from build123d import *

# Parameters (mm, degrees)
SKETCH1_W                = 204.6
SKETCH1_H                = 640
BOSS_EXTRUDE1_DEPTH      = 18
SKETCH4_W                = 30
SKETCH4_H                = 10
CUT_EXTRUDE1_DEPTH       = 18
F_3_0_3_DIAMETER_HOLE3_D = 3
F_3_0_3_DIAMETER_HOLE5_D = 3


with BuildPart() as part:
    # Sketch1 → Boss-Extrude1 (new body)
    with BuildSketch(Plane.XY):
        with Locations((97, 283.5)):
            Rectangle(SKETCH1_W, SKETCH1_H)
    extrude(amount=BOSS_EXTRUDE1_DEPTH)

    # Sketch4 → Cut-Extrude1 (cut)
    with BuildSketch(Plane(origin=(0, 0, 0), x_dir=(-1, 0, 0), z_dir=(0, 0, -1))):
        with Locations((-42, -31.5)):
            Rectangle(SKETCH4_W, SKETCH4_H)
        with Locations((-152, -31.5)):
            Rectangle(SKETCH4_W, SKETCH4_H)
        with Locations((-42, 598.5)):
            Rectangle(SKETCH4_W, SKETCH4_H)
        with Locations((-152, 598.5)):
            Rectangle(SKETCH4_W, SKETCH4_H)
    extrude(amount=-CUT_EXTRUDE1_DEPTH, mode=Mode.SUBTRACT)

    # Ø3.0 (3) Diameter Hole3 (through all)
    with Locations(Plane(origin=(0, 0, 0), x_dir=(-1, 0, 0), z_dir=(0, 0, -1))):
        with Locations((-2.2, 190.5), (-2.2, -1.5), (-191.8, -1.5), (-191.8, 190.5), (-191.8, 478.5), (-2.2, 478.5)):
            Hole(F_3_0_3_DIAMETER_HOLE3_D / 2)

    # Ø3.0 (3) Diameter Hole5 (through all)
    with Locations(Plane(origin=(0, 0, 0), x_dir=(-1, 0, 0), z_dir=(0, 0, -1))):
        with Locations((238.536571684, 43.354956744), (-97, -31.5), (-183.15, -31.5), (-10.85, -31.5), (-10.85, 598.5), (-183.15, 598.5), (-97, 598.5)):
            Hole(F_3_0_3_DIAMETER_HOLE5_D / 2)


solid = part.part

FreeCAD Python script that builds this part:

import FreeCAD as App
import Part
import Sketcher
Q = App.Units.Quantity

doc = App.newDocument("Part")
params = doc.addObject("Spreadsheet::Sheet", "Params")
for row, (alias, value) in enumerate([
    ("sketch1_height", "640 mm"),
    ("sketch1_width", "204.6 mm"),
    ("pad1_length", "18 mm"),
    ("sketch2_width", "30 mm"),
    ("sketch2_height", "10 mm"),
    ("pocket1_length", "18 mm"),
    ("sketch3_diameter", "3 mm"),
    ("hole_diameter", "3 mm"),
    ("sketch4_diameter", "3 mm"),
    ("hole2_diameter", "3 mm"),
], start=1):
    params.set(f"A{row}", alias)
    params.set(f"B{row}", "=" + value)
    params.setAlias(f"B{row}", alias)

body = doc.addObject("PartDesign::Body", "Body")

# Sketch on XY plane
sketch1 = doc.addObject("Sketcher::SketchObject", "Sketch")
body.addObject(sketch1)
sketch1.AttachmentSupport = (doc.XY_Plane, [""])
sketch1.MapMode = "FlatFace"
sketch1.addGeometry([
    Part.LineSegment(App.Vector(-5, 604, 0), App.Vector(-5, -36, 0)),
    Part.LineSegment(App.Vector(-5, -36, 0), App.Vector(199, -36, 0)),
    Part.LineSegment(App.Vector(199, -36, 0), App.Vector(199, 604, 0)),
    Part.LineSegment(App.Vector(199, 604, 0), App.Vector(-5, 604, 0)),
], False)
sketch1.addConstraint([
    Sketcher.Constraint("Coincident", 0, 2, 1, 1),
    Sketcher.Constraint("Coincident", 1, 2, 2, 1),
    Sketcher.Constraint("Coincident", 2, 2, 3, 1),
    Sketcher.Constraint("Coincident", 3, 2, 0, 1),
    Sketcher.Constraint("Vertical", 0),
    Sketcher.Constraint("Horizontal", 1),
    Sketcher.Constraint("Vertical", 2),
    Sketcher.Constraint("Horizontal", 3),
    Sketcher.Constraint("DistanceY", 0, 2, 0, 1, Q("640 mm")),
    Sketcher.Constraint("DistanceX", 1, 1, 1, 2, Q("204.6 mm")),
    Sketcher.Constraint("DistanceX", 0, 2, -1, 1, Q("5.3 mm")),
    Sketcher.Constraint("DistanceY", 0, 2, -1, 1, Q("36.5 mm")),
])
sketch1.setExpression("Constraints[8]", "Params.sketch1_height")
sketch1.setExpression("Constraints[9]", "Params.sketch1_width")
pad1 = doc.addObject("PartDesign::Pad", "Pad")
body.addObject(pad1)
pad1.Profile = sketch1
pad1.setExpression("Length", "Params.pad1_length")

# Sketch on XY plane
sketch2 = doc.addObject("Sketcher::SketchObject", "Sketch001")
body.addObject(sketch2)
sketch2.AttachmentSupport = (doc.XY_Plane, [""])
sketch2.MapMode = "FlatFace"
sketch2.addGeometry([
    Part.LineSegment(App.Vector(57, -26, 0), App.Vector(57, -36, 0)),  # 0
    Part.LineSegment(App.Vector(57, -36, 0), App.Vector(27, -36, 0)),  # 1
    Part.LineSegment(App.Vector(27, -36, 0), App.Vector(27, -26, 0)),  # 2
    Part.LineSegment(App.Vector(27, -26, 0), App.Vector(57, -26, 0)),  # 3
    Part.LineSegment(App.Vector(167, -26, 0), App.Vector(167, -36, 0)),  # 4
    Part.LineSegment(App.Vector(167, -36, 0), App.Vector(137, -36, 0)),  # 5
    Part.LineSegment(App.Vector(137, -36, 0), App.Vector(137, -26, 0)),  # 6
    Part.LineSegment(App.Vector(137, -26, 0), App.Vector(167, -26, 0)),  # 7
    Part.LineSegment(App.Vector(57, 604, 0), App.Vector(57, 594, 0)),  # 8
    Part.LineSegment(App.Vector(57, 594, 0), App.Vector(27, 594, 0)),  # 9
    Part.LineSegment(App.Vector(27, 594, 0), App.Vector(27, 604, 0)),  # 10
    Part.LineSegment(App.Vector(27, 604, 0), App.Vector(57, 604, 0)),  # 11
    Part.LineSegment(App.Vector(167, 604, 0), App.Vector(167, 594, 0)),  # 12
    Part.LineSegment(App.Vector(167, 594, 0), App.Vector(137, 594, 0)),  # 13
    Part.LineSegment(App.Vector(137, 594, 0), App.Vector(137, 604, 0)),  # 14
    Part.LineSegment(App.Vector(137, 604, 0), App.Vector(167, 604, 0)),  # 15
], False)
sketch2.addConstraint([
    Sketcher.Constraint("Coincident", 0, 2, 1, 1),
    Sketcher.Constraint("Coincident", 1, 2, 2, 1),
    Sketcher.Constraint("Coincident", 2, 2, 3, 1),
    Sketcher.Constraint("Coincident", 3, 2, 0, 1),
    Sketcher.Constraint("Coincident", 4, 2, 5, 1),
    Sketcher.Constraint("Coincident", 5, 2, 6, 1),
    Sketcher.Constraint("Coincident", 6, 2, 7, 1),
    Sketcher.Constraint("Coincident", 7, 2, 4, 1),
    Sketcher.Constraint("Coincident", 8, 2, 9, 1),
    Sketcher.Constraint("Coincident", 9, 2, 10, 1),
    Sketcher.Constraint("Coincident", 10, 2, 11, 1),
    Sketcher.Constraint("Coincident", 11, 2, 8, 1),
    Sketcher.Constraint("Coincident", 12, 2, 13, 1),
    Sketcher.Constraint("Coincident", 13, 2, 14, 1),
    Sketcher.Constraint("Coincident", 14, 2, 15, 1),
    Sketcher.Constraint("Coincident", 15, 2, 12, 1),
    Sketcher.Constraint("Vertical", 0),
    Sketcher.Constraint("Horizontal", 1),
    Sketcher.Constraint("Vertical", 2),
    Sketcher.Constraint("Horizontal", 3),
    Sketcher.Constraint("Vertical", 4),
    Sketcher.Constraint("Horizontal", 5),
    Sketcher.Constraint("Vertical", 6),
    Sketcher.Constraint("Horizontal", 7),
    Sketcher.Constraint("Vertical", 8),
    Sketcher.Constraint("Horizontal", 9),
    Sketcher.Constraint("Vertical", 10),
    Sketcher.Constraint("Horizontal", 11),
    Sketcher.Constraint("Vertical", 12),
    Sketcher.Constraint("Horizontal", 13),
    Sketcher.Constraint("Vertical", 14),
    Sketcher.Constraint("Horizontal", 15),
    Sketcher.Constraint("Horizontal", 1, 2, 4, 2),
    Sketcher.Constraint("Horizontal", 3, 2, 6, 2),
    Sketcher.Constraint("Horizontal", 9, 2, 12, 2),
    Sketcher.Constraint("Horizontal", 11, 2, 14, 2),
    Sketcher.Constraint("Vertical", 3, 2, 8, 2),
    Sketcher.Constraint("Vertical", 2, 2, 9, 2),
    Sketcher.Constraint("Vertical", 7, 2, 12, 2),
    Sketcher.Constraint("Vertical", 6, 2, 13, 2),
    Sketcher.Constraint("Equal", 3, 5),
    Sketcher.Constraint("Equal", 6, 8),
    Sketcher.Constraint("DistanceX", 1, 2, 1, 1, Q("30 mm")),
    Sketcher.Constraint("DistanceY", 0, 2, 0, 1, Q("10 mm")),
    Sketcher.Constraint("DistanceX", -1, 1, 0, 2, Q("57 mm")),
    Sketcher.Constraint("DistanceX", -1, 1, 4, 2, Q("167 mm")),
    Sketcher.Constraint("DistanceY", 3, 2, 8, 2, Q("620 mm")),
    Sketcher.Constraint("DistanceY", 0, 2, -1, 1, Q("36.5 mm")),
])
sketch2.setExpression("Constraints[42]", "Params.sketch2_width")
sketch2.setExpression("Constraints[43]", "Params.sketch2_height")
pocket1 = doc.addObject("PartDesign::Pocket", "Pocket")
body.addObject(pocket1)
pocket1.Profile = sketch2
pocket1.setExpression("Length", "Params.pocket1_length")
pocket1.Reversed = True

# Sketch on XY plane
sketch3 = doc.addObject("Sketcher::SketchObject", "Sketch002")
body.addObject(sketch3)
sketch3.AttachmentSupport = (doc.XY_Plane, [""])
sketch3.MapMode = "FlatFace"
sketch3.addGeometry([
    Part.Circle(App.Vector(2.2, 190.5, 0), App.Vector(0, 0, 1), 1.5),  # 0
    Part.Circle(App.Vector(2.2, -1.5, 0), App.Vector(0, 0, 1), 1.5),  # 1
    Part.Circle(App.Vector(191.8, -1.5, 0), App.Vector(0, 0, 1), 1.5),  # 2
    Part.Circle(App.Vector(191.8, 190.5, 0), App.Vector(0, 0, 1), 1.5),  # 3
    Part.Circle(App.Vector(191.8, 478.5, 0), App.Vector(0, 0, 1), 1.5),  # 4
    Part.Circle(App.Vector(2.2, 478.5, 0), App.Vector(0, 0, 1), 1.5),  # 5
], False)
sketch3.addConstraint([
    Sketcher.Constraint("Equal", 0, 1),
    Sketcher.Constraint("Equal", 1, 2),
    Sketcher.Constraint("Equal", 2, 3),
    Sketcher.Constraint("Equal", 3, 4),
    Sketcher.Constraint("Equal", 4, 5),
    Sketcher.Constraint("Horizontal", 1, 3, 2, 3),
    Sketcher.Constraint("Horizontal", 0, 3, 3, 3),
    Sketcher.Constraint("Horizontal", 4, 3, 5, 3),
    Sketcher.Constraint("Vertical", 0, 3, 1, 3),
    Sketcher.Constraint("Vertical", 2, 3, 3, 3),
    Sketcher.Constraint("Vertical", 3, 3, 4, 3),
    Sketcher.Constraint("Vertical", 1, 3, 5, 3),
    Sketcher.Constraint("Diameter", 0, Q("3 mm")),
    Sketcher.Constraint("DistanceY", 1, 3, 0, 3, Q("192 mm")),
    Sketcher.Constraint("DistanceY", 3, 3, 4, 3, Q("288 mm")),
    Sketcher.Constraint("DistanceX", -1, 1, 0, 3, Q("2.2 mm")),
    Sketcher.Constraint("DistanceY", -1, 1, 0, 3, Q("190.5 mm")),
    Sketcher.Constraint("DistanceX", -1, 1, 2, 3, Q("191.8 mm")),
])
sketch3.setExpression("Constraints[12]", "Params.sketch3_diameter")
doc.recompute()
hole = doc.addObject("PartDesign::Hole", "Hole")
body.addObject(hole)
hole.Profile = sketch3
hole.ThreadType = "None"
hole.setExpression("Diameter", "Params.hole_diameter")
hole.DepthType = "ThroughAll"
hole.Reversed = True

# Sketch on XY plane
sketch4 = doc.addObject("Sketcher::SketchObject", "Sketch003")
body.addObject(sketch4)
sketch4.AttachmentSupport = (doc.XY_Plane, [""])
sketch4.MapMode = "FlatFace"
sketch4.addGeometry([
    Part.Circle(App.Vector(-238.5, 43.4, 0), App.Vector(0, 0, 1), 1.5),  # 0
    Part.Circle(App.Vector(97, -31.5, 0), App.Vector(0, 0, 1), 1.5),  # 1
    Part.Circle(App.Vector(183.2, -31.5, 0), App.Vector(0, 0, 1), 1.5),  # 2
    Part.Circle(App.Vector(10.8, -31.5, 0), App.Vector(0, 0, 1), 1.5),  # 3
    Part.Circle(App.Vector(10.8, 598.5, 0), App.Vector(0, 0, 1), 1.5),  # 4
    Part.Circle(App.Vector(183.2, 598.5, 0), App.Vector(0, 0, 1), 1.5),  # 5
    Part.Circle(App.Vector(97, 598.5, 0), App.Vector(0, 0, 1), 1.5),  # 6
], False)
sketch4.addConstraint([
    Sketcher.Constraint("Equal", 0, 1),
    Sketcher.Constraint("Equal", 1, 2),
    Sketcher.Constraint("Equal", 2, 3),
    Sketcher.Constraint("Equal", 3, 4),
    Sketcher.Constraint("Equal", 4, 5),
    Sketcher.Constraint("Equal", 5, 6),
    Sketcher.Constraint("Horizontal", 1, 3, 2, 3),
    Sketcher.Constraint("Horizontal", 2, 3, 3, 3),
    Sketcher.Constraint("Horizontal", 4, 3, 5, 3),
    Sketcher.Constraint("Horizontal", 5, 3, 6, 3),
    Sketcher.Constraint("Vertical", 3, 3, 4, 3),
    Sketcher.Constraint("Vertical", 2, 3, 5, 3),
    Sketcher.Constraint("Vertical", 1, 3, 6, 3),
    Sketcher.Constraint("Diameter", 0, Q("3 mm")),
    Sketcher.Constraint("DistanceX", -1, 1, 1, 3, Q("97 mm")),
    Sketcher.Constraint("DistanceY", 3, 3, 4, 3, Q("630 mm")),
    Sketcher.Constraint("DistanceY", 1, 3, -1, 1, Q("31.5 mm")),
    Sketcher.Constraint("DistanceX", 3, 3, 2, 3, Q("172.3 mm")),
    Sketcher.Constraint("DistanceX", -1, 1, 2, 3, Q("183.15 mm")),
    Sketcher.Constraint("DistanceX", 0, 3, -1, 1, Q("238.536572 mm")),
    Sketcher.Constraint("DistanceY", -1, 1, 0, 3, Q("43.354957 mm")),
])
sketch4.setExpression("Constraints[13]", "Params.sketch4_diameter")
doc.recompute()
hole2 = doc.addObject("PartDesign::Hole", "Hole001")
body.addObject(hole2)
hole2.Profile = sketch4
hole2.ThreadType = "None"
hole2.setExpression("Diameter", "Params.hole2_diameter")
hole2.DepthType = "ThroughAll"
hole2.Reversed = True

doc.recompute()
